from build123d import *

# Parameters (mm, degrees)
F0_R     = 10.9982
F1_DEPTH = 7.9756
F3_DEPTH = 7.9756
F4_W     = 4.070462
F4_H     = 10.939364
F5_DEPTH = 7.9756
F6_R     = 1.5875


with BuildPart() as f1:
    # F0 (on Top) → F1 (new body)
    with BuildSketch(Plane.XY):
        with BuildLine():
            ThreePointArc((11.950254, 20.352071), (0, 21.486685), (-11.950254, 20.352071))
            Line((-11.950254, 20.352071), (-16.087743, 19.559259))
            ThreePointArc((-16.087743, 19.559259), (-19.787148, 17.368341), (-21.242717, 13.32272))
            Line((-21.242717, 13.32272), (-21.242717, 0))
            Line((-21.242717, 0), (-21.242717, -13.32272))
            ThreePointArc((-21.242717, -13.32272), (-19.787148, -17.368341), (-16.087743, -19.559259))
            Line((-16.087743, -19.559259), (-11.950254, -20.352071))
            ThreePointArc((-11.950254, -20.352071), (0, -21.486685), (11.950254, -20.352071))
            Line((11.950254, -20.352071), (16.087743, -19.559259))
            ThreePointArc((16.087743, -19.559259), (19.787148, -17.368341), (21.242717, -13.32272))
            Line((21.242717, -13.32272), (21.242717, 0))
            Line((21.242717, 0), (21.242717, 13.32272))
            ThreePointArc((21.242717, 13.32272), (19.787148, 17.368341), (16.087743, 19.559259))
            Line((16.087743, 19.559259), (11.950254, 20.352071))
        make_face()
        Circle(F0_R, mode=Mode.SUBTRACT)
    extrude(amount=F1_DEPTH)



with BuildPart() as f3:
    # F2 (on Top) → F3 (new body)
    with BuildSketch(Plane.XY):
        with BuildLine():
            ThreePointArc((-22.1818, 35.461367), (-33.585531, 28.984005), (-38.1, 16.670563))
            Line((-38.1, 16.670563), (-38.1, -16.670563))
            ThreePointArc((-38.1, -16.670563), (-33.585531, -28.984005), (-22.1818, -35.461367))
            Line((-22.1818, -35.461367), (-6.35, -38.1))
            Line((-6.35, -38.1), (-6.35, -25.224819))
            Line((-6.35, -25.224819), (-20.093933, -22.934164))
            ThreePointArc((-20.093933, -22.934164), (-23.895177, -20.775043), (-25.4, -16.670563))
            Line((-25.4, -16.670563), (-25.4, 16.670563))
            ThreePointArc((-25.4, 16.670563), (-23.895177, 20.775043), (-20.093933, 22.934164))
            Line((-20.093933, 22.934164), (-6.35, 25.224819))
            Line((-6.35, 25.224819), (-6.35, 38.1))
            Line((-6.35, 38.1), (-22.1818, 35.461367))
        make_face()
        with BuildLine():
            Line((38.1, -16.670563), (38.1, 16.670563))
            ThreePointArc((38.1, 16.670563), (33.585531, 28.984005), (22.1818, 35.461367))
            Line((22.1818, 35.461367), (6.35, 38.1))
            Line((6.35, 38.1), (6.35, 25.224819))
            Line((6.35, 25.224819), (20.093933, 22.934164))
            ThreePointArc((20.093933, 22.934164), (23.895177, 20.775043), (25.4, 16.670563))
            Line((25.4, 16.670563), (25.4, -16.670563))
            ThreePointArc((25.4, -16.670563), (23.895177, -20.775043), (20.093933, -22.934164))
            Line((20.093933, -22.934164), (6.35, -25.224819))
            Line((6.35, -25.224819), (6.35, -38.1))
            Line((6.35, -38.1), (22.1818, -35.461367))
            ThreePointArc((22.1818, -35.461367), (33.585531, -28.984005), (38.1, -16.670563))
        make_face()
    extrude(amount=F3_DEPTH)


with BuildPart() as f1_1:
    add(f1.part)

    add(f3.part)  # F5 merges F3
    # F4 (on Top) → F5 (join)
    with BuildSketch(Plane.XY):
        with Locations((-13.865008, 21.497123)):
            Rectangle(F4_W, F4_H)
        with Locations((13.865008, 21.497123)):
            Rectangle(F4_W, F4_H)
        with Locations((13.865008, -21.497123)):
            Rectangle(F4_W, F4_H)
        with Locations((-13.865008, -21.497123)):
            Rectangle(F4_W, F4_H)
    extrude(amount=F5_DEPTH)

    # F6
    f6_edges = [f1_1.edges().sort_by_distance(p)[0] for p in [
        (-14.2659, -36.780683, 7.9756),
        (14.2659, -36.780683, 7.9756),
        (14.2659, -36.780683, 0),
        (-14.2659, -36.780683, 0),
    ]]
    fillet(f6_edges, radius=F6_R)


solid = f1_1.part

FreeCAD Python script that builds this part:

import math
import FreeCAD as App
import Part
import Sketcher
Q = App.Units.Quantity


def edges_at(feature, points):
    """Names of the edges that pass closest to the given points."""
    edges = feature.Shape.Edges
    near = lambda p: min(range(len(edges)), key=lambda i: edges[i].distToShape(Part.Vertex(*p))[0])
    return sorted({f"Edge{near(p) + 1}" for p in points})


def add_polygon(sketch, points):
    """Adds a closed chain of lines whose ends are joined by coincident constraints."""
    first, n = sketch.GeometryCount, len(points)
    for a, b in zip(points, points[1:] + points[:1]):
        sketch.addGeometry(Part.LineSegment(App.Vector(*a, 0), App.Vector(*b, 0)), False)
    for i in range(n):
        sketch.addConstraint(Sketcher.Constraint("Coincident", first + i, 2, first + (i + 1) % n, 1))

doc = App.newDocument("Part")
body = doc.addObject("PartDesign::Body", "Body")

# Sketch on XY plane
sketch1 = doc.addObject("Sketcher::SketchObject", "Sketch")
body.addObject(sketch1)
sketch1.AttachmentSupport = (doc.XY_Plane, [""])
sketch1.MapMode = "FlatFace"
sketch1.addGeometry([
    Part.ArcOfCircle(Part.Circle(App.Vector(0, -42, 0), App.Vector(0, 0, 1), 63.5), math.radians(79), math.radians(101)),  # 0
    Part.LineSegment(App.Vector(-12, 20.4, 0), App.Vector(-16.1, 19.6, 0)),  # 1
    Part.ArcOfCircle(Part.Circle(App.Vector(-14.9, 13.3, 0), App.Vector(0, 0, 1), 6.3), math.radians(101), math.radians(180)),  # 2
    Part.LineSegment(App.Vector(-21.2, 13.3, 0), App.Vector(-21.2, -13.3, 0)),  # 3
    Part.ArcOfCircle(Part.Circle(App.Vector(-14.9, -13.3, 0), App.Vector(0, 0, 1), 6.3), math.radians(180), math.radians(259)),  # 4
    Part.LineSegment(App.Vector(-16.1, -19.6, 0), App.Vector(-12, -20.4, 0)),  # 5
    Part.ArcOfCircle(Part.Circle(App.Vector(0, 42, 0), App.Vector(0, 0, 1), 63.5), math.radians(-101), math.radians(-79)),  # 6
    Part.LineSegment(App.Vector(12, -20.4, 0), App.Vector(16.1, -19.6, 0)),  # 7
    Part.ArcOfCircle(Part.Circle(App.Vector(14.9, -13.3, 0), App.Vector(0, 0, 1), 6.3), math.radians(-79), math.radians(0)),  # 8
    Part.LineSegment(App.Vector(21.2, -13.3, 0), App.Vector(21.2, 13.3, 0)),  # 9
    Part.ArcOfCircle(Part.Circle(App.Vector(14.9, 13.3, 0), App.Vector(0, 0, 1), 6.3), math.radians(0), math.radians(79)),  # 10
    Part.LineSegment(App.Vector(16.1, 19.6, 0), App.Vector(12, 20.4, 0)),  # 11
    Part.Circle(App.Vector(0, 0, 0), App.Vector(0, 0, 1), 11),  # 12
], False)
sketch1.addConstraint([
    Sketcher.Constraint("Tangent", 0, 2, 1, 1),
    Sketcher.Constraint("Tangent", 1, 2, 2, 1),
    Sketcher.Constraint("Tangent", 2, 2, 3, 1),
    Sketcher.Constraint("Tangent", 3, 2, 4, 1),
    Sketcher.Constraint("Tangent", 4, 2, 5, 1),
    Sketcher.Constraint("Tangent", 5, 2, 6, 1),
    Sketcher.Constraint("Tangent", 6, 2, 7, 1),
    Sketcher.Constraint("Tangent", 7, 2, 8, 1),
    Sketcher.Constraint("Tangent", 8, 2, 9, 1),
    Sketcher.Constraint("Tangent", 9, 2, 10, 1),
    Sketcher.Constraint("Tangent", 10, 2, 11, 1),
    Sketcher.Constraint("Tangent", 11, 2, 0, 1),
    Sketcher.Constraint("Vertical", 3),
    Sketcher.Constraint("Vertical", 9),
    Sketcher.Constraint("Coincident", 12, 3, -1, 1),
    Sketcher.Constraint("Equal", 2, 4),
    Sketcher.Constraint("Equal", 0, 6),
    Sketcher.Constraint("Equal", 4, 8),
    Sketcher.Constraint("Equal", 8, 10),
    Sketcher.Constraint("Symmetric", 0, 3, 6, 3, -1, 1),
    Sketcher.Constraint("Symmetric", 2, 3, 8, 3, -1, 1),
    Sketcher.Constraint("Symmetric", 5, 2, 6, 2, -2),
    Sketcher.Constraint("Parallel", 5, 11),
    Sketcher.Constraint("Radius", 2, Q("0.25 in")),
    Sketcher.Constraint("Diameter", 12, Q("0.866 in")),
    Sketcher.Constraint("Radius", 0, Q("63.499974 mm")),
    Sketcher.Constraint("DistanceY", 3, 2, 3, 1, Q("26.64544 mm")),
    Sketcher.Constraint("DistanceY", 0, 3, -1, 1, Q("42.013289 mm")),
    Sketcher.Constraint("DistanceY", -1, 1, 0, 2, Q("20.352071 mm")),
])
pad1 = doc.addObject("PartDesign::Pad", "Pad")
body.addObject(pad1)
pad1.Profile = sketch1
pad1.Length = Q("0.314 in")
body2 = doc.addObject("PartDesign::Body", "Body001")
body2.AllowCompound = True

# Sketch on XY plane
sketch2 = doc.addObject("Sketcher::SketchObject", "Sketch001")
body2.addObject(sketch2)
sketch2.AttachmentSupport = (doc.getObject("XY_Plane001"), [""])
sketch2.MapMode = "FlatFace"
sketch2.addGeometry([
    Part.ArcOfCircle(Part.Circle(App.Vector(-19.050002, 16.670564, 0), App.Vector(0, 0, 1), 19.049998), math.radians(99.462315), math.radians(180.000004)),  # 0
    Part.LineSegment(App.Vector(-38.1, 16.670563, 0), App.Vector(-38.1, -16.670563, 0)),  # 1
    Part.ArcOfCircle(Part.Circle(App.Vector(-19.050002, -16.670564, 0), App.Vector(0, 0, 1), 19.049998), math.radians(179.999996), math.radians(260.537685)),  # 2
    Part.LineSegment(App.Vector(-22.1818, -35.461367, 0), App.Vector(-6.35, -38.1, 0)),  # 3
    Part.LineSegment(App.Vector(-6.35, -38.1, 0), App.Vector(-6.35, -25.224819, 0)),  # 4
    Part.LineSegment(App.Vector(-6.35, -25.224819, 0), App.Vector(-20.093933, -22.934164, 0)),  # 5
    Part.ArcOfCircle(Part.Circle(App.Vector(-19.05, -16.670563, 0), App.Vector(0, 0, 1), 6.35), math.radians(-179.999996), math.radians(-99.462316)),  # 6
    Part.LineSegment(App.Vector(-25.4, -16.670563, 0), App.Vector(-25.4, 16.670563, 0)),  # 7
    Part.ArcOfCircle(Part.Circle(App.Vector(-19.05, 16.670563, 0), App.Vector(0, 0, 1), 6.35), math.radians(99.462316), math.radians(179.999996)),  # 8
    Part.LineSegment(App.Vector(-20.093933, 22.934164, 0), App.Vector(-6.35, 25.224819, 0)),  # 9
    Part.LineSegment(App.Vector(-6.35, 25.224819, 0), App.Vector(-6.35, 38.1, 0)),  # 10
    Part.LineSegment(App.Vector(-6.35, 38.1, 0), App.Vector(-22.1818, 35.461367, 0)),  # 11
    Part.LineSegment(App.Vector(38.1, -16.670563, 0), App.Vector(38.1, 16.670563, 0)),  # 12
    Part.ArcOfCircle(Part.Circle(App.Vector(19.050002, 16.670564, 0), App.Vector(0, 0, 1), 19.049998), math.radians(-0.000004), math.radians(80.537685)),  # 13
    Part.LineSegment(App.Vector(22.1818, 35.461367, 0), App.Vector(6.35, 38.1, 0)),  # 14
    Part.LineSegment(App.Vector(6.35, 38.1, 0), App.Vector(6.35, 25.224819, 0)),  # 15
    Part.LineSegment(App.Vector(6.35, 25.224819, 0), App.Vector(20.093933, 22.934164, 0)),  # 16
    Part.ArcOfCircle(Part.Circle(App.Vector(19.05, 16.670563, 0), App.Vector(0, 0, 1), 6.35), math.radians(0.000004), math.radians(80.537684)),  # 17
    Part.LineSegment(App.Vector(25.4, 16.670563, 0), App.Vector(25.4, -16.670563, 0)),  # 18
    Part.ArcOfCircle(Part.Circle(App.Vector(19.05, -16.670563, 0), App.Vector(0, 0, 1), 6.35), math.radians(-80.537684), math.radians(-0.000004)),  # 19
    Part.LineSegment(App.Vector(20.093933, -22.934164, 0), App.Vector(6.35, -25.224819, 0)),  # 20
    Part.LineSegment(App.Vector(6.35, -25.224819, 0), App.Vector(6.35, -38.1, 0)),  # 21
    Part.LineSegment(App.Vector(6.35, -38.1, 0), App.Vector(22.1818, -35.461367, 0)),  # 22
    Part.ArcOfCircle(Part.Circle(App.Vector(19.050002, -16.670564, 0), App.Vector(0, 0, 1), 19.049998), math.radians(-80.537685), math.radians(0.000004)),  # 23
], False)
sketch2.addConstraint([
    Sketcher.Constraint("Coincident", 0, 2, 1, 1),
    Sketcher.Constraint("Coincident", 1, 2, 2, 1),
    Sketcher.Constraint("Coincident", 2, 2, 3, 1),
    Sketcher.Constraint("Coincident", 3, 2, 4, 1),
    Sketcher.Constraint("Coincident", 4, 2, 5, 1),
    Sketcher.Constraint("Coincident", 5, 2, 6, 2),
    Sketcher.Constraint("Coincident", 6, 1, 7, 1),
    Sketcher.Constraint("Coincident", 7, 2, 8, 2),
    Sketcher.Constraint("Coincident", 8, 1, 9, 1),
    Sketcher.Constraint("Coincident", 9, 2, 10, 1),
    Sketcher.Constraint("Coincident", 10, 2, 11, 1),
    Sketcher.Constraint("Coincident", 11, 2, 0, 1),
    Sketcher.Constraint("Coincident", 12, 2, 13, 1),
    Sketcher.Constraint("Coincident", 13, 2, 14, 1),
    Sketcher.Constraint("Coincident", 14, 2, 15, 1),
    Sketcher.Constraint("Coincident", 15, 2, 16, 1),
    Sketcher.Constraint("Coincident", 16, 2, 17, 2),
    Sketcher.Constraint("Coincident", 17, 1, 18, 1),
    Sketcher.Constraint("Coincident", 18, 2, 19, 2),
    Sketcher.Constraint("Coincident", 19, 1, 20, 1),
    Sketcher.Constraint("Coincident", 20, 2, 21, 1),
    Sketcher.Constraint("Coincident", 21, 2, 22, 1),
    Sketcher.Constraint("Coincident", 22, 2, 23, 1),
    Sketcher.Constraint("Coincident", 23, 2, 12, 1),
    Sketcher.Constraint("Vertical", 1),
    Sketcher.Constraint("Vertical", 4),
    Sketcher.Constraint("Vertical", 7),
    Sketcher.Constraint("Vertical", 10),
    Sketcher.Constraint("Vertical", 12),
    Sketcher.Constraint("Vertical", 15),
    Sketcher.Constraint("Vertical", 18),
    Sketcher.Constraint("Vertical", 21),
    Sketcher.Constraint("Coincident", 6, 3, 2, 3),
    Sketcher.Constraint("Coincident", 8, 3, 0, 3),
    Sketcher.Constraint("Coincident", 17, 3, 13, 3),
    Sketcher.Constraint("Coincident", 23, 3, 19, 3),
    Sketcher.Constraint("Radius", 0, Q("0.7499999 in")),
    Sketcher.Constraint("Radius", 2, Q("0.7499999 in")),
    Sketcher.Constraint("Radius", 6, Q("0.25 in")),
    Sketcher.Constraint("Radius", 13, Q("0.7499999 in")),
    Sketcher.Constraint("Radius", 17, Q("0.25 in")),
    Sketcher.Constraint("Radius", 19, Q("0.25 in")),
    Sketcher.Constraint("DistanceX", 6, 1, -1, 1, Q("1 in")),
    Sketcher.Constraint("DistanceX", -1, 1, 17, 1, Q("1 in")),
    Sketcher.Constraint("DistanceX", 3, 2, 19, 3, Q("1 in")),
    Sketcher.Constraint("DistanceX", 9, 2, 17, 3, Q("1 in")),
    Sketcher.Constraint("DistanceY", 3, 2, -1, 1, Q("1.5 in")),
    Sketcher.Constraint("DistanceY", -1, 1, 10, 2, Q("1.5 in")),
    Sketcher.Constraint("DistanceY", -1, 1, 14, 2, Q("1.5 in")),
    Sketcher.Constraint("DistanceY", 21, 2, -1, 1, Q("1.5 in")),
    Sketcher.Constraint("DistanceX", 10, 2, 14, 2, Q("0.5 in")),
    Sketcher.Constraint("DistanceX", 4, 2, 20, 2, Q("0.5 in")),
    Sketcher.Constraint("DistanceY", 4, 1, 4, 2, Q("12.875181 mm")),
    Sketcher.Constraint("DistanceY", 10, 1, 10, 2, Q("12.875181 mm")),
    Sketcher.Constraint("DistanceY", 15, 2, 15, 1, Q("12.875181 mm")),
    Sketcher.Constraint("DistanceY", 21, 2, 21, 1, Q("12.875181 mm")),
    Sketcher.Constraint("DistanceX", 2, 2, -1, 1, Q("22.1818 mm")),
    Sketcher.Constraint("DistanceX", 11, 2, -1, 1, Q("22.1818 mm")),
    Sketcher.Constraint("DistanceX", -1, 1, 13, 2, Q("22.1818 mm")),
    Sketcher.Constraint("DistanceX", -1, 1, 22, 2, Q("22.1818 mm")),
    Sketcher.Constraint("DistanceY", 5, 2, 2, 3, Q("6.2636 mm")),
    Sketcher.Constraint("DistanceY", 5, 2, 1, 2, Q("6.263601 mm")),
    Sketcher.Constraint("DistanceY", 5, 2, 6, 1, Q("6.263601 mm")),
    Sketcher.Constraint("DistanceY", 0, 3, 8, 1, Q("6.2636 mm")),
    Sketcher.Constraint("DistanceY", 7, 2, 8, 1, Q("6.263601 mm")),
    Sketcher.Constraint("DistanceY", 0, 2, 8, 1, Q("6.263601 mm")),
    Sketcher.Constraint("DistanceY", 13, 3, 16, 2, Q("6.2636 mm")),
    Sketcher.Constraint("DistanceY", 12, 2, 16, 2, Q("6.263601 mm")),
    Sketcher.Constraint("DistanceY", 17, 1, 16, 2, Q("6.263601 mm")),
    Sketcher.Constraint("DistanceY", 19, 1, 23, 3, Q("6.2636 mm")),
    Sketcher.Constraint("DistanceY", 19, 1, 18, 2, Q("6.263601 mm")),
    Sketcher.Constraint("DistanceY", 19, 1, 23, 2, Q("6.263601 mm")),
    Sketcher.Constraint("Distance", 3, Q("16.05018 mm")),
    Sketcher.Constraint("Distance", 11, Q("16.05018 mm")),
    Sketcher.Constraint("Distance", 14, Q("16.05018 mm")),
    Sketcher.Constraint("Distance", 22, Q("16.05018 mm")),
])
pad2 = doc.addObject("PartDesign::Pad", "Pad001")
body2.addObject(pad2)
pad2.Profile = sketch2
pad2.Length = Q("0.314 in")
body.AllowCompound = True
doc.recompute()

boolean = doc.addObject("PartDesign::Boolean", "Boolean")
body.addObject(boolean)
boolean.Type = "Fuse"
boolean.addObjects([body2])

# Sketch on XY plane
sketch3 = doc.addObject("Sketcher::SketchObject", "Sketch002")
body.addObject(sketch3)
sketch3.AttachmentSupport = (doc.XY_Plane, [""])
sketch3.MapMode = "FlatFace"
add_polygon(sketch3, [(-15.9, 27), (-15.9, 16), (-11.8, 16), (-11.8, 27)])  # lines 0-3
add_polygon(sketch3, [(11.8, 27), (11.8, 16), (15.9, 16), (15.9, 27)])  # lines 4-7
add_polygon(sketch3, [(11.8, -16), (11.8, -27), (15.9, -27), (15.9, -16)])  # lines 8-11
add_polygon(sketch3, [(-15.9, -16), (-15.9, -27), (-11.8, -27), (-11.8, -16)])  # lines 12-15
sketch3.addConstraint([
    Sketcher.Constraint("Vertical", 0),
    Sketcher.Constraint("Horizontal", 1),
    Sketcher.Constraint("Vertical", 2),
    Sketcher.Constraint("Horizontal", 3),
    Sketcher.Constraint("Vertical", 4),
    Sketcher.Constraint("Horizontal", 5),
    Sketcher.Constraint("Vertical", 6),
    Sketcher.Constraint("Horizontal", 7),
    Sketcher.Constraint("Vertical", 8),
    Sketcher.Constraint("Horizontal", 9),
    Sketcher.Constraint("Vertical", 10),
    Sketcher.Constraint("Horizontal", 11),
    Sketcher.Constraint("Vertical", 12),
    Sketcher.Constraint("Horizontal", 13),
    Sketcher.Constraint("Vertical", 14),
    Sketcher.Constraint("Horizontal", 15),
    Sketcher.Constraint("Symmetric", 2, 2, 8, 2, -1, 1),
    Sketcher.Constraint("Symmetric", 0, 2, 10, 2, -1, 1),
    Sketcher.Constraint("Symmetric", 6, 2, 12, 2, -1, 1),
    Sketcher.Constraint("Symmetric", 4, 2, 14, 2, -1, 1),
    Sketcher.Constraint("Symmetric", 1, 2, 4, 2, -2),
    Sketcher.Constraint("Symmetric", 3, 2, 6, 2, -2),
    Sketcher.Constraint("DistanceX", 1, 1, 1, 2, Q("4.070462 mm")),
    Sketcher.Constraint("DistanceY", 0, 2, 0, 1, Q("10.939364 mm")),
    Sketcher.Constraint("DistanceX", 0, 2, -1, 1, Q("15.900239 mm")),
    Sketcher.Constraint("DistanceY", -1, 1, 0, 2, Q("16.027441 mm")),
])
pad3 = doc.addObject("PartDesign::Pad", "Pad002")
body.addObject(pad3)
pad3.Profile = sketch3
pad3.Length = Q("0.314 in")
doc.recompute()

fillet = doc.addObject("PartDesign::Fillet", "Fillet")
body.addObject(fillet)
fillet.Base = (pad3, edges_at(pad3, [
    (-14.266, -36.781, 7.976),
    (14.266, -36.781, 7.976),
    (14.266, -36.781, 0),
    (-14.266, -36.781, 0),
]))
fillet.Radius = Q("0.0625 in")

doc.recompute()
